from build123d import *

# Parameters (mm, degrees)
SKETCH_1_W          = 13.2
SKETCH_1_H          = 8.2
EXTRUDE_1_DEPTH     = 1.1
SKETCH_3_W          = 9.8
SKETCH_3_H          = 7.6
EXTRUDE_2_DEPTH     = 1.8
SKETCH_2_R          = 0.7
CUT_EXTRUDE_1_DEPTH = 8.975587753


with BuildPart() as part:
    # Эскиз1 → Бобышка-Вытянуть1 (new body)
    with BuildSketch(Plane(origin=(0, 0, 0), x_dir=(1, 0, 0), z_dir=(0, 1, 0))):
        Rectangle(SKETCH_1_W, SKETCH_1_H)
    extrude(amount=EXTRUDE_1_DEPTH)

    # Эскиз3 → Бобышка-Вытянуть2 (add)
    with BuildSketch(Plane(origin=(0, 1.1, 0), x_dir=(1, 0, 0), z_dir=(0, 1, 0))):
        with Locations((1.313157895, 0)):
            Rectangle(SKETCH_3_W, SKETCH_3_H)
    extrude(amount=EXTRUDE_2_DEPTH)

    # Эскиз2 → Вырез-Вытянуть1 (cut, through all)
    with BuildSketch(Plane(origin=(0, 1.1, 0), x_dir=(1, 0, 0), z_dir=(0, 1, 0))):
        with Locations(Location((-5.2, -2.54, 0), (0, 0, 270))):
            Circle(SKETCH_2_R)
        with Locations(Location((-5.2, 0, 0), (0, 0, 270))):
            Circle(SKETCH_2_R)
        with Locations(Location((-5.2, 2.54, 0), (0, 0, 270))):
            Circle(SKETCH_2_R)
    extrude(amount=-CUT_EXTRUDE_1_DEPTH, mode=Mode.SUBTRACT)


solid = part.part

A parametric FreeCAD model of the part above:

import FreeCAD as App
import Part
import Sketcher
Q = App.Units.Quantity

doc = App.newDocument("Part")
params = doc.addObject("Spreadsheet::Sheet", "Params")
for row, (alias, value) in enumerate([
    ("sketch1_width", "13.2 mm"),
    ("sketch1_height", "8.2 mm"),
    ("pad1_length", "1.1 mm"),
    ("sketch2_width", "9.8 mm"),
    ("sketch2_height", "7.6 mm"),
    ("pad2_length", "1.8 mm"),
    ("sketch3_diameter", "1.4 mm"),
], start=1):
    params.set(f"A{row}", alias)
    params.set(f"B{row}", "=" + value)
    params.setAlias(f"B{row}", alias)

body = doc.addObject("PartDesign::Body", "Body")

# Sketch on XZ plane
sketch1 = body.newObject("Sketcher::SketchObject", "Sketch")
sketch1.AttachmentSupport = (doc.getObject("XZ_Plane"), [""])
sketch1.MapMode = "FlatFace"
sketch1.addGeometry(Part.LineSegment(App.Vector(-7, -4, 0), App.Vector(-7, 4, 0)), False)
sketch1.addGeometry(Part.LineSegment(App.Vector(-7, 4, 0), App.Vector(7, 4, 0)), False)
sketch1.addGeometry(Part.LineSegment(App.Vector(7, 4, 0), App.Vector(7, -4, 0)), False)
sketch1.addGeometry(Part.LineSegment(App.Vector(7, -4, 0), App.Vector(-7, -4, 0)), False)
sketch1.addConstraint(Sketcher.Constraint("Coincident", 0, 2, 1, 1))
sketch1.addConstraint(Sketcher.Constraint("Coincident", 1, 2, 2, 1))
sketch1.addConstraint(Sketcher.Constraint("Coincident", 2, 2, 3, 1))
sketch1.addConstraint(Sketcher.Constraint("Coincident", 3, 2, 0, 1))
sketch1.addConstraint(Sketcher.Constraint("Vertical", 0))
sketch1.addConstraint(Sketcher.Constraint("Horizontal", 1))
sketch1.addConstraint(Sketcher.Constraint("Vertical", 2))
sketch1.addConstraint(Sketcher.Constraint("Horizontal", 3))
sketch1.addConstraint(Sketcher.Constraint("Symmetric", 0, 2, 2, 2, -1, 1))
sketch1.addConstraint(Sketcher.Constraint("DistanceX", 1, 1, 1, 2, Q("13.2 mm")))
sketch1.addConstraint(Sketcher.Constraint("DistanceY", 0, 1, 0, 2, Q("8.2 mm")))
sketch1.setExpression("Constraints[9]", "Params.sketch1_width")
sketch1.setExpression("Constraints[10]", "Params.sketch1_height")
pad1 = body.newObject("PartDesign::Pad", "Pad")
pad1.Profile = sketch1
pad1.setExpression("Length", "Params.pad1_length")
pad1.Reversed = True

# Sketch on XZ plane
sketch2 = body.newObject("Sketcher::SketchObject", "Sketch001")
sketch2.AttachmentSupport = (doc.getObject("XZ_Plane"), [""])
sketch2.MapMode = "FlatFace"
sketch2.AttachmentOffset = App.Placement(App.Vector(0, 0, -1.1), App.Rotation())
sketch2.addGeometry(Part.LineSegment(App.Vector(-4, -4, 0), App.Vector(-4, 4, 0)), False)
sketch2.addGeometry(Part.LineSegment(App.Vector(-4, 4, 0), App.Vector(6, 4, 0)), False)
sketch2.addGeometry(Part.LineSegment(App.Vector(6, 4, 0), App.Vector(6, -4, 0)), False)
sketch2.addGeometry(Part.LineSegment(App.Vector(6, -4, 0), App.Vector(-4, -4, 0)), False)
sketch2.addConstraint(Sketcher.Constraint("Coincident", 0, 2, 1, 1))
sketch2.addConstraint(Sketcher.Constraint("Coincident", 1, 2, 2, 1))
sketch2.addConstraint(Sketcher.Constraint("Coincident", 2, 2, 3, 1))
sketch2.addConstraint(Sketcher.Constraint("Coincident", 3, 2, 0, 1))
sketch2.addConstraint(Sketcher.Constraint("Vertical", 0))
sketch2.addConstraint(Sketcher.Constraint("Horizontal", 1))
sketch2.addConstraint(Sketcher.Constraint("Vertical", 2))
sketch2.addConstraint(Sketcher.Constraint("Horizontal", 3))
sketch2.addConstraint(Sketcher.Constraint("DistanceX", 1, 1, 1, 2, Q("9.8 mm")))
sketch2.addConstraint(Sketcher.Constraint("DistanceY", 0, 1, 0, 2, Q("7.6 mm")))
sketch2.addConstraint(Sketcher.Constraint("DistanceY", -1, 1, 0, 2, Q("3.8 mm")))
sketch2.addConstraint(Sketcher.Constraint("DistanceX", 0, 2, -1, 1, Q("3.586842 mm")))
sketch2.setExpression("Constraints[8]", "Params.sketch2_width")
sketch2.setExpression("Constraints[9]", "Params.sketch2_height")
pad2 = body.newObject("PartDesign::Pad", "Pad001")
pad2.Profile = sketch2
pad2.setExpression("Length", "Params.pad2_length")
pad2.Reversed = True

# Sketch on XZ plane
sketch3 = body.newObject("Sketcher::SketchObject", "Sketch002")
sketch3.AttachmentSupport = (doc.getObject("XZ_Plane"), [""])
sketch3.MapMode = "FlatFace"
sketch3.AttachmentOffset = App.Placement(App.Vector(0, 0, -1.1), App.Rotation())
sketch3.addGeometry(Part.Circle(App.Vector(-5.2, 2.5, 0), App.Vector(0, 0, 1), 0.7), False)
sketch3.addGeometry(Part.Circle(App.Vector(-5.2, 0, 0), App.Vector(0, 0, 1), 0.7), False)
sketch3.addGeometry(Part.Circle(App.Vector(-5.2, -2.5, 0), App.Vector(0, 0, 1), 0.7), False)
sketch3.addConstraint(Sketcher.Constraint("Equal", 0, 1))
sketch3.addConstraint(Sketcher.Constraint("Equal", 1, 2))
sketch3.addConstraint(Sketcher.Constraint("Symmetric", 0, 3, 2, 3, -1))
sketch3.addConstraint(Sketcher.Constraint("PointOnObject", 1, 3, -1))
sketch3.addConstraint(Sketcher.Constraint("Vertical", 0, 3, 1, 3))
sketch3.addConstraint(Sketcher.Constraint("Diameter", 0, Q("1.4 mm")))
sketch3.addConstraint(Sketcher.Constraint("DistanceX", 0, 3, -1, 1, Q("5.2 mm")))
sketch3.addConstraint(Sketcher.Constraint("DistanceY", -1, 1, 0, 3, Q("2.54 mm")))
sketch3.setExpression("Constraints[5]", "Params.sketch3_diameter")
pocket1 = body.newObject("PartDesign::Pocket", "Pocket")
pocket1.Profile = sketch3
pocket1.Type = "ThroughAll"
pocket1.Reversed = True

doc.recompute()
